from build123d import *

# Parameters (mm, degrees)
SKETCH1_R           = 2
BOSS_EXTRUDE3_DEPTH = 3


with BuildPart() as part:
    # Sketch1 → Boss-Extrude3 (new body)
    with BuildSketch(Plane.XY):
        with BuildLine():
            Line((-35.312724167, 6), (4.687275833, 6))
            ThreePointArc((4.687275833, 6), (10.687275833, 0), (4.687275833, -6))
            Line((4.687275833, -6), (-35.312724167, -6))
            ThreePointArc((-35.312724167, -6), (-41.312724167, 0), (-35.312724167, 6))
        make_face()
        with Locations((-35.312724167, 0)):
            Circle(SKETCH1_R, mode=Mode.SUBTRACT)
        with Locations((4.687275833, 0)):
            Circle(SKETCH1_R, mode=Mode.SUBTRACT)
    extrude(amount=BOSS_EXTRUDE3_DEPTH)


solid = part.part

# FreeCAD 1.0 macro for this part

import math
import FreeCAD as App
import Part
import Sketcher

doc = App.newDocument("Part")
params = doc.addObject("Spreadsheet::Sheet", "Params")
for row, (alias, value) in enumerate([
    ("sketch1_diameter", "4 mm"),
    ("sketch1_radius", "6 mm"),
    ("sketch1_width", "40 mm"),
    ("pad1_length", "3 mm"),
], start=1):
    params.set(f"A{row}", alias)
    params.set(f"B{row}", "=" + value)
    params.setAlias(f"B{row}", alias)

body = doc.addObject("PartDesign::Body", "Body")

# Sketch on XY plane
sketch1 = doc.addObject("Sketcher::SketchObject", "Sketch")
body.addObject(sketch1)
sketch1.AttachmentSupport = (doc.XY_Plane, [""])
sketch1.MapMode = "FlatFace"
sketch1.addGeometry([
    Part.LineSegment(App.Vector(4.7, 6, 0), App.Vector(-35.3, 6, 0)),  # 0
    Part.ArcOfCircle(Part.Circle(App.Vector(-35.3, 0, 0), App.Vector(0, 0, 1), 6), math.radians(90), math.radians(270)),  # 1
    Part.LineSegment(App.Vector(-35.3, -6, 0), App.Vector(4.7, -6, 0)),  # 2
    Part.ArcOfCircle(Part.Circle(App.Vector(4.7, 0, 0), App.Vector(0, 0, 1), 6), math.radians(-90), math.radians(90)),  # 3
    Part.Circle(App.Vector(4.7, 0, 0), App.Vector(0, 0, 1), 2),  # 4
    Part.Circle(App.Vector(-35.3, 0, 0), App.Vector(0, 0, 1), 2),  # 5
], False)
sketch1.addConstraint([
    Sketcher.Constraint("Tangent", 0, 2, 1, 1),
    Sketcher.Constraint("Tangent", 1, 2, 2, 1),
    Sketcher.Constraint("Tangent", 2, 2, 3, 1),
    Sketcher.Constraint("Tangent", 3, 2, 0, 1),
    Sketcher.Constraint("Horizontal", 0),
    Sketcher.Constraint("Horizontal", 2),
    Sketcher.Constraint("Coincident", 4, 3, 3, 3),
    Sketcher.Constraint("Coincident", 5, 3, 1, 3),
    Sketcher.Constraint("Equal", 4, 5),
    Sketcher.Constraint("PointOnObject", 1, 3, -1),
    Sketcher.Constraint("Diameter", 4, 4.0),
    Sketcher.Constraint("Radius", 1, 6.0),
    Sketcher.Constraint("DistanceX", 0, 2, 0, 1, 40.0),
    Sketcher.Constraint("DistanceX", 1, 3, -1, 1, 35.312724),
])
sketch1.setExpression("Constraints[10]", "Params.sketch1_diameter")
sketch1.setExpression("Constraints[11]", "Params.sketch1_radius")
sketch1.setExpression("Constraints[12]", "Params.sketch1_width")
pad1 = doc.addObject("PartDesign::Pad", "Pad")
body.addObject(pad1)
pad1.Profile = sketch1
pad1.setExpression("Length", "Params.pad1_length")

doc.recompute()
